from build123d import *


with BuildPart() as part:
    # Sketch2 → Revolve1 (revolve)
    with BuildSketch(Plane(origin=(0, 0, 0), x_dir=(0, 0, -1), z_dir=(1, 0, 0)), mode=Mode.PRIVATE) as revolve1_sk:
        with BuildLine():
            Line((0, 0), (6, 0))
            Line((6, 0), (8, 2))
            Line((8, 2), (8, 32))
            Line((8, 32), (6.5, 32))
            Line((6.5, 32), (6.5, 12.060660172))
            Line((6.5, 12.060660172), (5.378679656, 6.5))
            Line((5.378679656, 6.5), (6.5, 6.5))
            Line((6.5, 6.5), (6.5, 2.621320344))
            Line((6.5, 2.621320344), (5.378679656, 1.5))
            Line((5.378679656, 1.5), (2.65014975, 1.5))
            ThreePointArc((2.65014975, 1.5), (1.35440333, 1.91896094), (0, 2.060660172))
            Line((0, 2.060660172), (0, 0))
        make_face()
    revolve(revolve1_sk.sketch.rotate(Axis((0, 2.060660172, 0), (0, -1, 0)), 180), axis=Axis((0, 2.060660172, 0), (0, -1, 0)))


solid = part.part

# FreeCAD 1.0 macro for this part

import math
import FreeCAD as App
import Part
import Sketcher
from FreeCAD import Vector
Q = App.Units.Quantity

doc = App.newDocument("Part")
params = doc.addObject("Spreadsheet::Sheet", "Params")
for row, (alias, value) in enumerate([
    ("sketch1_width", "30 mm"),
    ("sketch1_height", "6 mm"),
    ("sketch1_height2", "1.5 mm"),
    ("revolution_angle", "360 deg"),
], start=1):
    params.set(f"A{row}", alias)
    params.set(f"B{row}", "=" + value)
    params.setAlias(f"B{row}", alias)

body = doc.addObject("PartDesign::Body", "Body")

sketch1 = body.newObject("Sketcher::SketchObject", "Sketch")
sketch1.AttachmentSupport = (doc.getObject("YZ_Plane"), [""])
sketch1.MapMode = "FlatFace"
sketch1.addGeometry(Part.LineSegment(Vector(0, 0, 0), Vector(0, -6, 0)), False)
sketch1.addGeometry(Part.LineSegment(Vector(0, -6, 0), Vector(2, -8, 0)), False)
sketch1.addGeometry(Part.LineSegment(Vector(2, -8, 0), Vector(32, -8, 0)), False)
sketch1.addGeometry(Part.LineSegment(Vector(32, -8, 0), Vector(32, -6.5, 0)), False)
sketch1.addGeometry(Part.LineSegment(Vector(32, -6.5, 0), Vector(12.1, -6.5, 0)), False)
sketch1.addGeometry(Part.LineSegment(Vector(12.1, -6.5, 0), Vector(6.5, -5.4, 0)), False)
sketch1.addGeometry(Part.LineSegment(Vector(6.5, -5.4, 0), Vector(6.5, -6.5, 0)), False)
sketch1.addGeometry(Part.LineSegment(Vector(6.5, -6.5, 0), Vector(2.6, -6.5, 0)), False)
sketch1.addGeometry(Part.LineSegment(Vector(2.6, -6.5, 0), Vector(1.5, -5.4, 0)), False)
sketch1.addGeometry(Part.LineSegment(Vector(1.5, -5.4, 0), Vector(1.5, -2.7, 0)), False)
sketch1.addGeometry(Part.ArcOfCircle(Part.Circle(Vector(-4.5, 0, 0), Vector(0, 0, 1), 6.5), math.radians(-24), math.radians(0)), False)
sketch1.addGeometry(Part.LineSegment(Vector(2.1, 0, 0), Vector(0, 0, 0)), False)
sketch1.addConstraint(Sketcher.Constraint("Coincident", 0, 2, 1, 1))
sketch1.addConstraint(Sketcher.Constraint("Coincident", 1, 2, 2, 1))
sketch1.addConstraint(Sketcher.Constraint("Coincident", 2, 2, 3, 1))
sketch1.addConstraint(Sketcher.Constraint("Coincident", 3, 2, 4, 1))
sketch1.addConstraint(Sketcher.Constraint("Coincident", 4, 2, 5, 1))
sketch1.addConstraint(Sketcher.Constraint("Coincident", 5, 2, 6, 1))
sketch1.addConstraint(Sketcher.Constraint("Coincident", 6, 2, 7, 1))
sketch1.addConstraint(Sketcher.Constraint("Coincident", 7, 2, 8, 1))
sketch1.addConstraint(Sketcher.Constraint("Coincident", 8, 2, 9, 1))
sketch1.addConstraint(Sketcher.Constraint("Coincident", 9, 2, 10, 1))
sketch1.addConstraint(Sketcher.Constraint("Coincident", 10, 2, 11, 1))
sketch1.addConstraint(Sketcher.Constraint("Coincident", 11, 2, 0, 1))
sketch1.addConstraint(Sketcher.Constraint("Vertical", 0))
sketch1.addConstraint(Sketcher.Constraint("Horizontal", 2))
sketch1.addConstraint(Sketcher.Constraint("Vertical", 3))
sketch1.addConstraint(Sketcher.Constraint("Horizontal", 4))
sketch1.addConstraint(Sketcher.Constraint("Vertical", 6))
sketch1.addConstraint(Sketcher.Constraint("Horizontal", 7))
sketch1.addConstraint(Sketcher.Constraint("Vertical", 9))
sketch1.addConstraint(Sketcher.Constraint("Horizontal", 11))
sketch1.addConstraint(Sketcher.Constraint("Coincident", 11, 2, -1, 1))
sketch1.addConstraint(Sketcher.Constraint("PointOnObject", 10, 3, -1))
sketch1.addConstraint(Sketcher.Constraint("Parallel", 1, 8))
sketch1.addConstraint(Sketcher.Constraint("Horizontal", 4, 2, 6, 2))
sketch1.addConstraint(Sketcher.Constraint("Horizontal", 5, 2, 8, 2))
sketch1.addConstraint(Sketcher.Constraint("DistanceX", 2, 1, 2, 2, 30.0))
sketch1.addConstraint(Sketcher.Constraint("DistanceY", 0, 2, 0, 1, 6.0))
sketch1.addConstraint(Sketcher.Constraint("Angle", 1, Q("-45 deg")))
sketch1.addConstraint(Sketcher.Constraint("DistanceY", 3, 1, 3, 2, 1.5))
sketch1.addConstraint(Sketcher.Constraint("DistanceX", -1, 1, 1, 2, 2.0))
sketch1.addConstraint(Sketcher.Constraint("DistanceX", 8, 2, 5, 2, 5.0))
sketch1.addConstraint(Sketcher.Constraint("DistanceX", -1, 1, 5, 2, 6.5))
sketch1.addConstraint(Sketcher.Constraint("Radius", 10, 6.543744))
sketch1.addConstraint(Sketcher.Constraint("DistanceX", 4, 2, 4, 1, 19.93934))
sketch1.addConstraint(Sketcher.Constraint("DistanceX", 7, 2, 7, 1, 3.87868))
sketch1.addConstraint(Sketcher.Constraint("DistanceX", 11, 2, 11, 1, 2.06066))
sketch1.setExpression("Constraints[25]", "Params.sketch1_width")
sketch1.setExpression("Constraints[26]", "Params.sketch1_height")
sketch1.setExpression("Constraints[28]", "Params.sketch1_height2")
revolution = body.newObject("PartDesign::Revolution", "Revolution")
revolution.Profile = sketch1
revolution.ReferenceAxis = (sketch1, ["H_Axis"])
revolution.setExpression("Angle", "Params.revolution_angle")

doc.recompute()
